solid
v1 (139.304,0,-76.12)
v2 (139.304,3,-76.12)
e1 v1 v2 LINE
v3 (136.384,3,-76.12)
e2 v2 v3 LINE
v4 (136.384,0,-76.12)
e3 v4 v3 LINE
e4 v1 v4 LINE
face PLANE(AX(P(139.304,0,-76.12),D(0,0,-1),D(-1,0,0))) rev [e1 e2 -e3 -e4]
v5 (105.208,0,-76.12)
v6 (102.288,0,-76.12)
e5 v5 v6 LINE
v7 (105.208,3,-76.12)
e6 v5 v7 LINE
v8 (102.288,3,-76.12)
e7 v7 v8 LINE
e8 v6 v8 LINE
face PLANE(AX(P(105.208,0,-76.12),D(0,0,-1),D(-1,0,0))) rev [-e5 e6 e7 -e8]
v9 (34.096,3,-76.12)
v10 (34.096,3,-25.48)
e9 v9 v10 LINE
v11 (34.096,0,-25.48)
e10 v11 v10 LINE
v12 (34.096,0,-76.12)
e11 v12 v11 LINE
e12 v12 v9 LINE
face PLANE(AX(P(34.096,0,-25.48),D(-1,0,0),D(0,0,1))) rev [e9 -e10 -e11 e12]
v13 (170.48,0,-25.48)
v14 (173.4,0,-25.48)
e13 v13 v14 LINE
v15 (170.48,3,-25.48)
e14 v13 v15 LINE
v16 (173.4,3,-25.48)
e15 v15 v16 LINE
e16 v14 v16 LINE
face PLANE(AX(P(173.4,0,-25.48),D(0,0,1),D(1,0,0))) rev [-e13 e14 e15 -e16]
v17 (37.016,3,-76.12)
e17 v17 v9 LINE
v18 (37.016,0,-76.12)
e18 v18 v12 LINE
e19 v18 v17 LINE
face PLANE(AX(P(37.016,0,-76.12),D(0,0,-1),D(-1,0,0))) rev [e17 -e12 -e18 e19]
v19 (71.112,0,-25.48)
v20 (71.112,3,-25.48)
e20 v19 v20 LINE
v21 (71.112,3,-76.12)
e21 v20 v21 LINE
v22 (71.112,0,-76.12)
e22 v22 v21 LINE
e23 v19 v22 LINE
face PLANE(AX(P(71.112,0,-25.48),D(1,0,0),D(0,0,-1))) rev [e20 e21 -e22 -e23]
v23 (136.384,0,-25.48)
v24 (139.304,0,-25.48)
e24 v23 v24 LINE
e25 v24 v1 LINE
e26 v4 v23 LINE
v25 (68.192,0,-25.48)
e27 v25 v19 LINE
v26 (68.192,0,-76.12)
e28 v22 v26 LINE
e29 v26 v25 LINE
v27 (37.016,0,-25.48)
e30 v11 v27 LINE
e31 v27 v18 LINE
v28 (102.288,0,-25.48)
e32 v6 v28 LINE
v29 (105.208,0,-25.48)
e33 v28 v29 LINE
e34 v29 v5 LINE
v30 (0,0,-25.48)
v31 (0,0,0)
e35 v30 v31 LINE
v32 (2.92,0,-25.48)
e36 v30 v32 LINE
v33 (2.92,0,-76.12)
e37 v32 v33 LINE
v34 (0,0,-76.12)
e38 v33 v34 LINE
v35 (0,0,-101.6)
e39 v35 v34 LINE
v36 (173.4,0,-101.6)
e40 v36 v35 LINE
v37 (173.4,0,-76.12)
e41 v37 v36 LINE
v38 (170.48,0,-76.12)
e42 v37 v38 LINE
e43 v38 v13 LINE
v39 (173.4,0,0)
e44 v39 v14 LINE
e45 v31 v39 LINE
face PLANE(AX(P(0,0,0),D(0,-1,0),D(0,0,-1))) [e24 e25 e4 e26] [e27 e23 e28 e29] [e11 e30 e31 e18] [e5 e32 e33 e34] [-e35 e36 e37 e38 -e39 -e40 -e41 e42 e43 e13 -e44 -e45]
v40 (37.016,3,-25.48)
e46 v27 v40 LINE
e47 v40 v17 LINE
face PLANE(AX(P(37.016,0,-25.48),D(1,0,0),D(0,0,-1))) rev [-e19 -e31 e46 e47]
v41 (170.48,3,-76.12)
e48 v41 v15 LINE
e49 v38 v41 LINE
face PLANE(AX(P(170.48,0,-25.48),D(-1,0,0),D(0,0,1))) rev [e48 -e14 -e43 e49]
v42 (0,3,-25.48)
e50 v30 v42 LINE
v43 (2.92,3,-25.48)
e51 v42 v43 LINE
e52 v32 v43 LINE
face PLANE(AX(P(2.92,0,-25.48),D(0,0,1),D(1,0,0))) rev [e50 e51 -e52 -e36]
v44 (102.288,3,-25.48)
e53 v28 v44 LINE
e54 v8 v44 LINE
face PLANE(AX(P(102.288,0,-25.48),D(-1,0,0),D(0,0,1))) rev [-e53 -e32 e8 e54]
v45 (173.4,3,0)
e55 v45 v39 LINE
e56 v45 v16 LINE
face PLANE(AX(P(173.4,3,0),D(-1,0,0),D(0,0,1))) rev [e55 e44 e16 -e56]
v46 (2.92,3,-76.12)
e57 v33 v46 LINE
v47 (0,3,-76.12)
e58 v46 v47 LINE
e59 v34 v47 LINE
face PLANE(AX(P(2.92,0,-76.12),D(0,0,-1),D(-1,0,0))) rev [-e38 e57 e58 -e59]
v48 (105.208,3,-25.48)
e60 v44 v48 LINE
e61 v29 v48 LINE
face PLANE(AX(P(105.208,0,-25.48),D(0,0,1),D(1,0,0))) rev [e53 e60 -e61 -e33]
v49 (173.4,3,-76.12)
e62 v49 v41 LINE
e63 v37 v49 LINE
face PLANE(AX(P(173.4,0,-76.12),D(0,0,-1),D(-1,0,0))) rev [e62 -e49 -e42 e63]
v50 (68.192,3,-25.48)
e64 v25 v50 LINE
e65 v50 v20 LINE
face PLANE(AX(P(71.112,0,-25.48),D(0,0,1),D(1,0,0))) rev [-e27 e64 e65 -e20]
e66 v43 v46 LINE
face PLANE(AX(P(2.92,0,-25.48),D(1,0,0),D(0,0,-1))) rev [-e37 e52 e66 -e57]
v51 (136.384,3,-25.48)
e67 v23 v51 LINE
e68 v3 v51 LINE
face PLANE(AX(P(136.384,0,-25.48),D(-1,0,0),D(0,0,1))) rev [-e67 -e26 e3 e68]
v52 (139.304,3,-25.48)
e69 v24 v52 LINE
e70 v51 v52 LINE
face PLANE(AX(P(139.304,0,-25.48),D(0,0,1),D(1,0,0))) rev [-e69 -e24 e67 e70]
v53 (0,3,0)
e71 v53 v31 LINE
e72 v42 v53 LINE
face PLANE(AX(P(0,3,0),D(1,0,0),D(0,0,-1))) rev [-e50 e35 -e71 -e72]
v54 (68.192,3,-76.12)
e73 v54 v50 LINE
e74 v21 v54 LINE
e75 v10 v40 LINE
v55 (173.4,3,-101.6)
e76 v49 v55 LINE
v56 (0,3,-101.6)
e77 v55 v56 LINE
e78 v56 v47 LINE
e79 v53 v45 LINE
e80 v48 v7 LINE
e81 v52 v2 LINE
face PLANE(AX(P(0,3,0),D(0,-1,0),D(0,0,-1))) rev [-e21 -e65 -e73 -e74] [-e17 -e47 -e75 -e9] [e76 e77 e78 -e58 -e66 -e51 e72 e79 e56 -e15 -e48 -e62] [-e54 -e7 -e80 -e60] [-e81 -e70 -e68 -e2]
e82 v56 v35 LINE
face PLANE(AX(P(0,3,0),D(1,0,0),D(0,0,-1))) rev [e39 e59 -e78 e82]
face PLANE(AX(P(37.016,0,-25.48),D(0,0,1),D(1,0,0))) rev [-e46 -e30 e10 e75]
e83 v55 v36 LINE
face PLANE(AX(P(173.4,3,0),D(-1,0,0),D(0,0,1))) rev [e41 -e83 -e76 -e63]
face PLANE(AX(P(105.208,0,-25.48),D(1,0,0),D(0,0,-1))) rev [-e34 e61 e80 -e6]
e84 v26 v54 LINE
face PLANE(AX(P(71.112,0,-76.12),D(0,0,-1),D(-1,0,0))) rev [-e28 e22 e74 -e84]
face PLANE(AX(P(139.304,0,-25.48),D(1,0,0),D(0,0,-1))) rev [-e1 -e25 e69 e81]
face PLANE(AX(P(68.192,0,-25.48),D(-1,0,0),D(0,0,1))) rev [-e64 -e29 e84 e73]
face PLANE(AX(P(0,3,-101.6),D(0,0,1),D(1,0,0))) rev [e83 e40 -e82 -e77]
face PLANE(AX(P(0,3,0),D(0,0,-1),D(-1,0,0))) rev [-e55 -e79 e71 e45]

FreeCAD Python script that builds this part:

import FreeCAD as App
import Part
import Sketcher
Q = App.Units.Quantity


def add_polygon(sketch, points):
    """Adds a closed chain of lines whose ends are joined by coincident constraints."""
    first, n = sketch.GeometryCount, len(points)
    for a, b in zip(points, points[1:] + points[:1]):
        sketch.addGeometry(Part.LineSegment(App.Vector(*a, 0), App.Vector(*b, 0)), False)
    for i in range(n):
        sketch.addConstraint(Sketcher.Constraint("Coincident", first + i, 2, first + (i + 1) % n, 1))

doc = App.newDocument("Part")
body = doc.addObject("PartDesign::Body", "Body")

# Sketch on XZ plane
sketch1 = body.newObject("Sketcher::SketchObject", "Sketch")
sketch1.AttachmentSupport = (doc.getObject("XZ_Plane"), [""])
sketch1.MapMode = "FlatFace"
add_polygon(sketch1, [(0, -102), (0, 0), (173, 0), (173, -102)])  # lines 0-3
sketch1.addConstraint([
    Sketcher.Constraint("Vertical", 0),
    Sketcher.Constraint("Horizontal", 1),
    Sketcher.Constraint("Vertical", 2),
    Sketcher.Constraint("Horizontal", 3),
    Sketcher.Constraint("Coincident", 0, 2, -1, 1),
    Sketcher.Constraint("DistanceX", 1, 1, 1, 2, Q("173.4 mm")),
    Sketcher.Constraint("DistanceY", 0, 1, 0, 2, Q("101.6 mm")),
])
pad1 = body.newObject("PartDesign::Pad", "Pad")
pad1.Profile = sketch1
pad1.Length = 3
pad1.Reversed = True

# Sketch on XZ plane
sketch2 = body.newObject("Sketcher::SketchObject", "Sketch001")
sketch2.AttachmentSupport = (doc.getObject("XZ_Plane"), [""])
sketch2.MapMode = "FlatFace"
sketch2.AttachmentOffset = App.Placement(App.Vector(0, 0, -3), App.Rotation())
add_polygon(sketch2, [(0, -76.1), (0, -25.5), (2.9, -25.5), (2.9, -76.1)])  # lines 0-3
sketch2.addConstraint([
    Sketcher.Constraint("Vertical", 0),
    Sketcher.Constraint("Horizontal", 1),
    Sketcher.Constraint("Vertical", 2),
    Sketcher.Constraint("Horizontal", 3),
    Sketcher.Constraint("PointOnObject", 0, 2, -2),
    Sketcher.Constraint("DistanceX", 1, 1, 1, 2, Q("2.92 mm")),
    Sketcher.Constraint("DistanceY", 0, 1, 0, 2, Q("50.64 mm")),
    Sketcher.Constraint("DistanceY", 0, 2, -1, 1, Q("25.48 mm")),
])
pocket1 = body.newObject("PartDesign::Pocket", "Pocket")
pocket1.Profile = sketch2
pocket1.Length = 3
pocket1.Reversed = True
doc.recompute()

linearpattern = body.newObject("PartDesign::LinearPattern", "LinearPattern")
linearpattern.Originals = [pocket1]
linearpattern.Direction = (doc.getObject("X_Axis"), [""])
linearpattern.Mode = "offset"
linearpattern.Offset = 34.096
linearpattern.Occurrences = 6
body.Tip = linearpattern

doc.recompute()
